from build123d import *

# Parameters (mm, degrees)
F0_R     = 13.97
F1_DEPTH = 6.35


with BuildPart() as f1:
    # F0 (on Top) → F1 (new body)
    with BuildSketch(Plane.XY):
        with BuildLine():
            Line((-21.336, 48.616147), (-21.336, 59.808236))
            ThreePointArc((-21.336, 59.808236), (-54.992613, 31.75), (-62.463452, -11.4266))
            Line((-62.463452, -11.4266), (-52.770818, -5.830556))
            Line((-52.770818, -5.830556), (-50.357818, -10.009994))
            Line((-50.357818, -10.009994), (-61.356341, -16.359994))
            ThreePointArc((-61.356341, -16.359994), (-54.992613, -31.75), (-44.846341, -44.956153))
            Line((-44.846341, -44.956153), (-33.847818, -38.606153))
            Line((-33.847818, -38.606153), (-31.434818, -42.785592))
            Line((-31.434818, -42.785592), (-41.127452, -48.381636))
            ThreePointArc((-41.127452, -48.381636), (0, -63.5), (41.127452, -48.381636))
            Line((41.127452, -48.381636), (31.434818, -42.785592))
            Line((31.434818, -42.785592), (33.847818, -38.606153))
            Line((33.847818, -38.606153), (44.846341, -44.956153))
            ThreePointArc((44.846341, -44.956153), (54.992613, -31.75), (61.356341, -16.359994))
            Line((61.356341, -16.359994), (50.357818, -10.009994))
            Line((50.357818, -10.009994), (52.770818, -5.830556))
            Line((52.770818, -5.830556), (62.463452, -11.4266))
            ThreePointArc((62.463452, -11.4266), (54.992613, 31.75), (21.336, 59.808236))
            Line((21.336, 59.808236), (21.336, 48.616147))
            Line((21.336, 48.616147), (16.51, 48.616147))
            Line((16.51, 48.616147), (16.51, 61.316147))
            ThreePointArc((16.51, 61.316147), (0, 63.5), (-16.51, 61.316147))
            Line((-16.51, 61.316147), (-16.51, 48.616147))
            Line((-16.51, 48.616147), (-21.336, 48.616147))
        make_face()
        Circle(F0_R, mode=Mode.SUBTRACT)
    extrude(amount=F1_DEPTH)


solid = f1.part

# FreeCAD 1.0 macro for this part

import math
import FreeCAD as App
import Part
import Sketcher
from FreeCAD import Vector
Q = App.Units.Quantity

doc = App.newDocument("Part")
params = doc.addObject("Spreadsheet::Sheet", "Params")
for row, (alias, value) in enumerate([
    ("sketch1_diameter", "1.1 in"),
    ("sketch1_radius", "2.5 in"),
    ("sketch1_radius2", "2.4999998 in"),
    ("sketch1_height", "0.5 in"),
    ("sketch1_length", "0.5 in"),
    ("pad1_length", "0.25 in"),
], start=1):
    params.set(f"A{row}", alias)
    params.set(f"B{row}", "=" + value)
    params.setAlias(f"B{row}", alias)

body = doc.addObject("PartDesign::Body", "Body")

sketch1 = body.newObject("Sketcher::SketchObject", "Sketch")
sketch1.AttachmentSupport = (doc.getObject("XY_Plane"), [""])
sketch1.MapMode = "FlatFace"
sketch1.addGeometry(Part.LineSegment(Vector(-21.3, 48.6, 0), Vector(-21.3, 59.8, 0)), False)
sketch1.addGeometry(Part.ArcOfCircle(Part.Circle(Vector(0, 0, 0), Vector(0, 0, 1), 63.5), math.radians(110), math.radians(190)), False)
sketch1.addGeometry(Part.LineSegment(Vector(-62.5, -11.4, 0), Vector(-52.8, -5.8, 0)), False)
sketch1.addGeometry(Part.LineSegment(Vector(-52.8, -5.8, 0), Vector(-50.4, -10, 0)), False)
sketch1.addGeometry(Part.LineSegment(Vector(-50.4, -10, 0), Vector(-61.4, -16.4, 0)), False)
sketch1.addGeometry(Part.ArcOfCircle(Part.Circle(Vector(0, 0, 0), Vector(0, 0, 1), 63.5), math.radians(-165), math.radians(-135)), False)
sketch1.addGeometry(Part.LineSegment(Vector(-44.8, -45, 0), Vector(-33.8, -38.6, 0)), False)
sketch1.addGeometry(Part.LineSegment(Vector(-33.8, -38.6, 0), Vector(-31.4, -42.8, 0)), False)
sketch1.addGeometry(Part.LineSegment(Vector(-31.4, -42.8, 0), Vector(-41.1, -48.4, 0)), False)
sketch1.addGeometry(Part.ArcOfCircle(Part.Circle(Vector(0, 0, 0), Vector(0, 0, 1), 63.5), math.radians(-130), math.radians(-50)), False)
sketch1.addGeometry(Part.LineSegment(Vector(41.1, -48.4, 0), Vector(31.4, -42.8, 0)), False)
sketch1.addGeometry(Part.LineSegment(Vector(31.4, -42.8, 0), Vector(33.8, -38.6, 0)), False)
sketch1.addGeometry(Part.LineSegment(Vector(33.8, -38.6, 0), Vector(44.8, -45, 0)), False)
sketch1.addGeometry(Part.ArcOfCircle(Part.Circle(Vector(0, 0, 0), Vector(0, 0, 1), 63.5), math.radians(-45), math.radians(-15)), False)
sketch1.addGeometry(Part.LineSegment(Vector(61.4, -16.4, 0), Vector(50.4, -10, 0)), False)
sketch1.addGeometry(Part.LineSegment(Vector(50.4, -10, 0), Vector(52.8, -5.8, 0)), False)
sketch1.addGeometry(Part.LineSegment(Vector(52.8, -5.8, 0), Vector(62.5, -11.4, 0)), False)
sketch1.addGeometry(Part.ArcOfCircle(Part.Circle(Vector(0, 0, 0), Vector(0, 0, 1), 63.5), math.radians(-10), math.radians(70)), False)
sketch1.addGeometry(Part.LineSegment(Vector(21.3, 59.8, 0), Vector(21.3, 48.6, 0)), False)
sketch1.addGeometry(Part.LineSegment(Vector(21.3, 48.6, 0), Vector(16.5, 48.6, 0)), False)
sketch1.addGeometry(Part.LineSegment(Vector(16.5, 48.6, 0), Vector(16.5, 61.3, 0)), False)
sketch1.addGeometry(Part.ArcOfCircle(Part.Circle(Vector(0, 0, 0), Vector(0, 0, 1), 63.5), math.radians(75), math.radians(105)), False)
sketch1.addGeometry(Part.LineSegment(Vector(-16.5, 61.3, 0), Vector(-16.5, 48.6, 0)), False)
sketch1.addGeometry(Part.LineSegment(Vector(-16.5, 48.6, 0), Vector(-21.3, 48.6, 0)), False)
sketch1.addGeometry(Part.Circle(Vector(0, 0, 0), Vector(0, 0, 1), 14), False)
sketch1.addConstraint(Sketcher.Constraint("Coincident", 0, 2, 1, 1))
sketch1.addConstraint(Sketcher.Constraint("Coincident", 1, 2, 2, 1))
sketch1.addConstraint(Sketcher.Constraint("Coincident", 2, 2, 3, 1))
sketch1.addConstraint(Sketcher.Constraint("Coincident", 3, 2, 4, 1))
sketch1.addConstraint(Sketcher.Constraint("Coincident", 4, 2, 5, 1))
sketch1.addConstraint(Sketcher.Constraint("Coincident", 5, 2, 6, 1))
sketch1.addConstraint(Sketcher.Constraint("Coincident", 6, 2, 7, 1))
sketch1.addConstraint(Sketcher.Constraint("Coincident", 7, 2, 8, 1))
sketch1.addConstraint(Sketcher.Constraint("Coincident", 8, 2, 9, 1))
sketch1.addConstraint(Sketcher.Constraint("Coincident", 9, 2, 10, 1))
sketch1.addConstraint(Sketcher.Constraint("Coincident", 10, 2, 11, 1))
sketch1.addConstraint(Sketcher.Constraint("Coincident", 11, 2, 12, 1))
sketch1.addConstraint(Sketcher.Constraint("Coincident", 12, 2, 13, 1))
sketch1.addConstraint(Sketcher.Constraint("Coincident", 13, 2, 14, 1))
sketch1.addConstraint(Sketcher.Constraint("Coincident", 14, 2, 15, 1))
sketch1.addConstraint(Sketcher.Constraint("Coincident", 15, 2, 16, 1))
sketch1.addConstraint(Sketcher.Constraint("Coincident", 16, 2, 17, 1))
sketch1.addConstraint(Sketcher.Constraint("Coincident", 17, 2, 18, 1))
sketch1.addConstraint(Sketcher.Constraint("Coincident", 18, 2, 19, 1))
sketch1.addConstraint(Sketcher.Constraint("Coincident", 19, 2, 20, 1))
sketch1.addConstraint(Sketcher.Constraint("Coincident", 20, 2, 21, 1))
sketch1.addConstraint(Sketcher.Constraint("Coincident", 21, 2, 22, 1))
sketch1.addConstraint(Sketcher.Constraint("Coincident", 22, 2, 23, 1))
sketch1.addConstraint(Sketcher.Constraint("Coincident", 23, 2, 0, 1))
sketch1.addConstraint(Sketcher.Constraint("Vertical", 0))
sketch1.addConstraint(Sketcher.Constraint("Vertical", 18))
sketch1.addConstraint(Sketcher.Constraint("Horizontal", 19))
sketch1.addConstraint(Sketcher.Constraint("Vertical", 20))
sketch1.addConstraint(Sketcher.Constraint("Vertical", 22))
sketch1.addConstraint(Sketcher.Constraint("Horizontal", 23))
sketch1.addConstraint(Sketcher.Constraint("Coincident", 1, 3, -1, 1))
sketch1.addConstraint(Sketcher.Constraint("Coincident", 5, 3, -1, 1))
sketch1.addConstraint(Sketcher.Constraint("Coincident", 9, 3, -1, 1))
sketch1.addConstraint(Sketcher.Constraint("Coincident", 13, 3, -1, 1))
sketch1.addConstraint(Sketcher.Constraint("Coincident", 17, 3, -1, 1))
sketch1.addConstraint(Sketcher.Constraint("Coincident", 21, 3, -1, 1))
sketch1.addConstraint(Sketcher.Constraint("Coincident", 24, 3, -1, 1))
sketch1.addConstraint(Sketcher.Constraint("Equal", 1, 5))
sketch1.addConstraint(Sketcher.Constraint("Equal", 5, 9))
sketch1.addConstraint(Sketcher.Constraint("Equal", 9, 13))
sketch1.addConstraint(Sketcher.Constraint("Equal", 13, 17))
sketch1.addConstraint(Sketcher.Constraint("Symmetric", 7, 2, 10, 2, -2))
sketch1.addConstraint(Sketcher.Constraint("Symmetric", 6, 2, 11, 2, -2))
sketch1.addConstraint(Sketcher.Constraint("Symmetric", 3, 2, 14, 2, -2))
sketch1.addConstraint(Sketcher.Constraint("Symmetric", 2, 2, 15, 2, -2))
sketch1.addConstraint(Sketcher.Constraint("Symmetric", 19, 2, 22, 2, -2))
sketch1.addConstraint(Sketcher.Constraint("Perpendicular", 2, 3))
sketch1.addConstraint(Sketcher.Constraint("Perpendicular", 3, 4))
sketch1.addConstraint(Sketcher.Constraint("Parallel", 4, 6))
sketch1.addConstraint(Sketcher.Constraint("Perpendicular", 6, 7))
sketch1.addConstraint(Sketcher.Constraint("Perpendicular", 7, 8))
sketch1.addConstraint(Sketcher.Constraint("Perpendicular", 10, 11))
sketch1.addConstraint(Sketcher.Constraint("Perpendicular", 11, 12))
sketch1.addConstraint(Sketcher.Constraint("Parallel", 12, 14))
sketch1.addConstraint(Sketcher.Constraint("Perpendicular", 15, 16))
sketch1.addConstraint(Sketcher.Constraint("Horizontal", 0, 2, 17, 2))
sketch1.addConstraint(Sketcher.Constraint("Equal", 4, 6))
sketch1.addConstraint(Sketcher.Constraint("Equal", 3, 7))
sketch1.addConstraint(Sketcher.Constraint("Equal", 2, 8))
sketch1.addConstraint(Sketcher.Constraint("Diameter", 24, Q("1.1 in")))
sketch1.addConstraint(Sketcher.Constraint("Radius", 1, Q("2.5 in")))
sketch1.addConstraint(Sketcher.Constraint("Radius", 21, Q("2.4999998 in")))
sketch1.addConstraint(Sketcher.Constraint("DistanceY", 20, 1, 20, 2, Q("0.5 in")))
sketch1.addConstraint(Sketcher.Constraint("Angle", 2, Q("29.999996 deg")))
sketch1.addConstraint(Sketcher.Constraint("Distance", 4, Q("0.5 in")))
sketch1.addConstraint(Sketcher.Constraint("DistanceX", 19, 2, 19, 1, Q("0.19 in")))
sketch1.addConstraint(Sketcher.Constraint("DistanceX", 21, 2, 20, 2, Q("1.3 in")))
sketch1.addConstraint(Sketcher.Constraint("Distance", 3, Q("0.19 in")))
sketch1.addConstraint(Sketcher.Constraint("DistanceX", 4, 2, 5, 2, Q("0.65 in")))
sketch1.setExpression("Constraints[59]", "Params.sketch1_diameter")
sketch1.setExpression("Constraints[60]", "Params.sketch1_radius")
sketch1.setExpression("Constraints[61]", "Params.sketch1_radius2")
sketch1.setExpression("Constraints[62]", "Params.sketch1_height")
sketch1.setExpression("Constraints[64]", "Params.sketch1_length")
pad1 = body.newObject("PartDesign::Pad", "Pad")
pad1.Profile = sketch1
pad1.setExpression("Length", "Params.pad1_length")

doc.recompute()
